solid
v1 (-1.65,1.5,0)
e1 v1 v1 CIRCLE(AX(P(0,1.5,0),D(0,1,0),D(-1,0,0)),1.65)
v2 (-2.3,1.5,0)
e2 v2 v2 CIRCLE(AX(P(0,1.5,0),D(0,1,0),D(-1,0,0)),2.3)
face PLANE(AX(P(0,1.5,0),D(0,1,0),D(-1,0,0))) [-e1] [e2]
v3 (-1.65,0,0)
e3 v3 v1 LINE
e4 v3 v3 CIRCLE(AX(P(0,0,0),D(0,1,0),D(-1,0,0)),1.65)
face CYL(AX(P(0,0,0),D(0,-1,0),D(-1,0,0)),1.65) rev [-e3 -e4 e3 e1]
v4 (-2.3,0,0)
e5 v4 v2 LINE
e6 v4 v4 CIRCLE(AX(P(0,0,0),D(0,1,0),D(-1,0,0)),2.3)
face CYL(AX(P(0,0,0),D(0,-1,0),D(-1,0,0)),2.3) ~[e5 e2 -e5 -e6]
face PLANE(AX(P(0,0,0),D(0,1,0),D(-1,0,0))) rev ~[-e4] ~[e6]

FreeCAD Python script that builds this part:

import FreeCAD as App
import Part
import Sketcher

V = App.Vector
Q = App.Units.Quantity

doc = App.newDocument("Part")
params = doc.addObject("Spreadsheet::Sheet", "Params")
for row, (alias, value) in enumerate([
    ("sketch1_diameter", "3.3 mm"),
    ("sketch1_diameter2", "4.6 mm"),
    ("pad1_length", "1.5 mm"),
], start=1):
    params.set(f"A{row}", alias)
    params.set(f"B{row}", "=" + value)
    params.setAlias(f"B{row}", alias)

body = doc.addObject("PartDesign::Body", "Body")

# Sketch on XZ plane
sketch1 = body.newObject("Sketcher::SketchObject", "Sketch")
sketch1.AttachmentSupport = (doc.getObject("XZ_Plane"), [""])
sketch1.MapMode = "FlatFace"
sketch1.addGeometry([
    Part.Circle(V(0, 0, 0), V(0, 0, 1), 2.3),
    Part.Circle(V(0, 0, 0), V(0, 0, 1), 1.6),
], False)
sketch1.addConstraint([
    Sketcher.Constraint("Coincident", 0, 3, -1, 1),
    Sketcher.Constraint("Coincident", 1, 3, -1, 1),
    Sketcher.Constraint("Diameter", 1, Q("3.3 mm")),
    Sketcher.Constraint("Diameter", 0, Q("4.6 mm")),
])
sketch1.setExpression("Constraints[2]", "Params.sketch1_diameter")
sketch1.setExpression("Constraints[3]", "Params.sketch1_diameter2")
pad1 = body.newObject("PartDesign::Pad", "Pad")
pad1.Profile = sketch1
pad1.setExpression("Length", "Params.pad1_length")
pad1.Reversed = True

doc.recompute()
